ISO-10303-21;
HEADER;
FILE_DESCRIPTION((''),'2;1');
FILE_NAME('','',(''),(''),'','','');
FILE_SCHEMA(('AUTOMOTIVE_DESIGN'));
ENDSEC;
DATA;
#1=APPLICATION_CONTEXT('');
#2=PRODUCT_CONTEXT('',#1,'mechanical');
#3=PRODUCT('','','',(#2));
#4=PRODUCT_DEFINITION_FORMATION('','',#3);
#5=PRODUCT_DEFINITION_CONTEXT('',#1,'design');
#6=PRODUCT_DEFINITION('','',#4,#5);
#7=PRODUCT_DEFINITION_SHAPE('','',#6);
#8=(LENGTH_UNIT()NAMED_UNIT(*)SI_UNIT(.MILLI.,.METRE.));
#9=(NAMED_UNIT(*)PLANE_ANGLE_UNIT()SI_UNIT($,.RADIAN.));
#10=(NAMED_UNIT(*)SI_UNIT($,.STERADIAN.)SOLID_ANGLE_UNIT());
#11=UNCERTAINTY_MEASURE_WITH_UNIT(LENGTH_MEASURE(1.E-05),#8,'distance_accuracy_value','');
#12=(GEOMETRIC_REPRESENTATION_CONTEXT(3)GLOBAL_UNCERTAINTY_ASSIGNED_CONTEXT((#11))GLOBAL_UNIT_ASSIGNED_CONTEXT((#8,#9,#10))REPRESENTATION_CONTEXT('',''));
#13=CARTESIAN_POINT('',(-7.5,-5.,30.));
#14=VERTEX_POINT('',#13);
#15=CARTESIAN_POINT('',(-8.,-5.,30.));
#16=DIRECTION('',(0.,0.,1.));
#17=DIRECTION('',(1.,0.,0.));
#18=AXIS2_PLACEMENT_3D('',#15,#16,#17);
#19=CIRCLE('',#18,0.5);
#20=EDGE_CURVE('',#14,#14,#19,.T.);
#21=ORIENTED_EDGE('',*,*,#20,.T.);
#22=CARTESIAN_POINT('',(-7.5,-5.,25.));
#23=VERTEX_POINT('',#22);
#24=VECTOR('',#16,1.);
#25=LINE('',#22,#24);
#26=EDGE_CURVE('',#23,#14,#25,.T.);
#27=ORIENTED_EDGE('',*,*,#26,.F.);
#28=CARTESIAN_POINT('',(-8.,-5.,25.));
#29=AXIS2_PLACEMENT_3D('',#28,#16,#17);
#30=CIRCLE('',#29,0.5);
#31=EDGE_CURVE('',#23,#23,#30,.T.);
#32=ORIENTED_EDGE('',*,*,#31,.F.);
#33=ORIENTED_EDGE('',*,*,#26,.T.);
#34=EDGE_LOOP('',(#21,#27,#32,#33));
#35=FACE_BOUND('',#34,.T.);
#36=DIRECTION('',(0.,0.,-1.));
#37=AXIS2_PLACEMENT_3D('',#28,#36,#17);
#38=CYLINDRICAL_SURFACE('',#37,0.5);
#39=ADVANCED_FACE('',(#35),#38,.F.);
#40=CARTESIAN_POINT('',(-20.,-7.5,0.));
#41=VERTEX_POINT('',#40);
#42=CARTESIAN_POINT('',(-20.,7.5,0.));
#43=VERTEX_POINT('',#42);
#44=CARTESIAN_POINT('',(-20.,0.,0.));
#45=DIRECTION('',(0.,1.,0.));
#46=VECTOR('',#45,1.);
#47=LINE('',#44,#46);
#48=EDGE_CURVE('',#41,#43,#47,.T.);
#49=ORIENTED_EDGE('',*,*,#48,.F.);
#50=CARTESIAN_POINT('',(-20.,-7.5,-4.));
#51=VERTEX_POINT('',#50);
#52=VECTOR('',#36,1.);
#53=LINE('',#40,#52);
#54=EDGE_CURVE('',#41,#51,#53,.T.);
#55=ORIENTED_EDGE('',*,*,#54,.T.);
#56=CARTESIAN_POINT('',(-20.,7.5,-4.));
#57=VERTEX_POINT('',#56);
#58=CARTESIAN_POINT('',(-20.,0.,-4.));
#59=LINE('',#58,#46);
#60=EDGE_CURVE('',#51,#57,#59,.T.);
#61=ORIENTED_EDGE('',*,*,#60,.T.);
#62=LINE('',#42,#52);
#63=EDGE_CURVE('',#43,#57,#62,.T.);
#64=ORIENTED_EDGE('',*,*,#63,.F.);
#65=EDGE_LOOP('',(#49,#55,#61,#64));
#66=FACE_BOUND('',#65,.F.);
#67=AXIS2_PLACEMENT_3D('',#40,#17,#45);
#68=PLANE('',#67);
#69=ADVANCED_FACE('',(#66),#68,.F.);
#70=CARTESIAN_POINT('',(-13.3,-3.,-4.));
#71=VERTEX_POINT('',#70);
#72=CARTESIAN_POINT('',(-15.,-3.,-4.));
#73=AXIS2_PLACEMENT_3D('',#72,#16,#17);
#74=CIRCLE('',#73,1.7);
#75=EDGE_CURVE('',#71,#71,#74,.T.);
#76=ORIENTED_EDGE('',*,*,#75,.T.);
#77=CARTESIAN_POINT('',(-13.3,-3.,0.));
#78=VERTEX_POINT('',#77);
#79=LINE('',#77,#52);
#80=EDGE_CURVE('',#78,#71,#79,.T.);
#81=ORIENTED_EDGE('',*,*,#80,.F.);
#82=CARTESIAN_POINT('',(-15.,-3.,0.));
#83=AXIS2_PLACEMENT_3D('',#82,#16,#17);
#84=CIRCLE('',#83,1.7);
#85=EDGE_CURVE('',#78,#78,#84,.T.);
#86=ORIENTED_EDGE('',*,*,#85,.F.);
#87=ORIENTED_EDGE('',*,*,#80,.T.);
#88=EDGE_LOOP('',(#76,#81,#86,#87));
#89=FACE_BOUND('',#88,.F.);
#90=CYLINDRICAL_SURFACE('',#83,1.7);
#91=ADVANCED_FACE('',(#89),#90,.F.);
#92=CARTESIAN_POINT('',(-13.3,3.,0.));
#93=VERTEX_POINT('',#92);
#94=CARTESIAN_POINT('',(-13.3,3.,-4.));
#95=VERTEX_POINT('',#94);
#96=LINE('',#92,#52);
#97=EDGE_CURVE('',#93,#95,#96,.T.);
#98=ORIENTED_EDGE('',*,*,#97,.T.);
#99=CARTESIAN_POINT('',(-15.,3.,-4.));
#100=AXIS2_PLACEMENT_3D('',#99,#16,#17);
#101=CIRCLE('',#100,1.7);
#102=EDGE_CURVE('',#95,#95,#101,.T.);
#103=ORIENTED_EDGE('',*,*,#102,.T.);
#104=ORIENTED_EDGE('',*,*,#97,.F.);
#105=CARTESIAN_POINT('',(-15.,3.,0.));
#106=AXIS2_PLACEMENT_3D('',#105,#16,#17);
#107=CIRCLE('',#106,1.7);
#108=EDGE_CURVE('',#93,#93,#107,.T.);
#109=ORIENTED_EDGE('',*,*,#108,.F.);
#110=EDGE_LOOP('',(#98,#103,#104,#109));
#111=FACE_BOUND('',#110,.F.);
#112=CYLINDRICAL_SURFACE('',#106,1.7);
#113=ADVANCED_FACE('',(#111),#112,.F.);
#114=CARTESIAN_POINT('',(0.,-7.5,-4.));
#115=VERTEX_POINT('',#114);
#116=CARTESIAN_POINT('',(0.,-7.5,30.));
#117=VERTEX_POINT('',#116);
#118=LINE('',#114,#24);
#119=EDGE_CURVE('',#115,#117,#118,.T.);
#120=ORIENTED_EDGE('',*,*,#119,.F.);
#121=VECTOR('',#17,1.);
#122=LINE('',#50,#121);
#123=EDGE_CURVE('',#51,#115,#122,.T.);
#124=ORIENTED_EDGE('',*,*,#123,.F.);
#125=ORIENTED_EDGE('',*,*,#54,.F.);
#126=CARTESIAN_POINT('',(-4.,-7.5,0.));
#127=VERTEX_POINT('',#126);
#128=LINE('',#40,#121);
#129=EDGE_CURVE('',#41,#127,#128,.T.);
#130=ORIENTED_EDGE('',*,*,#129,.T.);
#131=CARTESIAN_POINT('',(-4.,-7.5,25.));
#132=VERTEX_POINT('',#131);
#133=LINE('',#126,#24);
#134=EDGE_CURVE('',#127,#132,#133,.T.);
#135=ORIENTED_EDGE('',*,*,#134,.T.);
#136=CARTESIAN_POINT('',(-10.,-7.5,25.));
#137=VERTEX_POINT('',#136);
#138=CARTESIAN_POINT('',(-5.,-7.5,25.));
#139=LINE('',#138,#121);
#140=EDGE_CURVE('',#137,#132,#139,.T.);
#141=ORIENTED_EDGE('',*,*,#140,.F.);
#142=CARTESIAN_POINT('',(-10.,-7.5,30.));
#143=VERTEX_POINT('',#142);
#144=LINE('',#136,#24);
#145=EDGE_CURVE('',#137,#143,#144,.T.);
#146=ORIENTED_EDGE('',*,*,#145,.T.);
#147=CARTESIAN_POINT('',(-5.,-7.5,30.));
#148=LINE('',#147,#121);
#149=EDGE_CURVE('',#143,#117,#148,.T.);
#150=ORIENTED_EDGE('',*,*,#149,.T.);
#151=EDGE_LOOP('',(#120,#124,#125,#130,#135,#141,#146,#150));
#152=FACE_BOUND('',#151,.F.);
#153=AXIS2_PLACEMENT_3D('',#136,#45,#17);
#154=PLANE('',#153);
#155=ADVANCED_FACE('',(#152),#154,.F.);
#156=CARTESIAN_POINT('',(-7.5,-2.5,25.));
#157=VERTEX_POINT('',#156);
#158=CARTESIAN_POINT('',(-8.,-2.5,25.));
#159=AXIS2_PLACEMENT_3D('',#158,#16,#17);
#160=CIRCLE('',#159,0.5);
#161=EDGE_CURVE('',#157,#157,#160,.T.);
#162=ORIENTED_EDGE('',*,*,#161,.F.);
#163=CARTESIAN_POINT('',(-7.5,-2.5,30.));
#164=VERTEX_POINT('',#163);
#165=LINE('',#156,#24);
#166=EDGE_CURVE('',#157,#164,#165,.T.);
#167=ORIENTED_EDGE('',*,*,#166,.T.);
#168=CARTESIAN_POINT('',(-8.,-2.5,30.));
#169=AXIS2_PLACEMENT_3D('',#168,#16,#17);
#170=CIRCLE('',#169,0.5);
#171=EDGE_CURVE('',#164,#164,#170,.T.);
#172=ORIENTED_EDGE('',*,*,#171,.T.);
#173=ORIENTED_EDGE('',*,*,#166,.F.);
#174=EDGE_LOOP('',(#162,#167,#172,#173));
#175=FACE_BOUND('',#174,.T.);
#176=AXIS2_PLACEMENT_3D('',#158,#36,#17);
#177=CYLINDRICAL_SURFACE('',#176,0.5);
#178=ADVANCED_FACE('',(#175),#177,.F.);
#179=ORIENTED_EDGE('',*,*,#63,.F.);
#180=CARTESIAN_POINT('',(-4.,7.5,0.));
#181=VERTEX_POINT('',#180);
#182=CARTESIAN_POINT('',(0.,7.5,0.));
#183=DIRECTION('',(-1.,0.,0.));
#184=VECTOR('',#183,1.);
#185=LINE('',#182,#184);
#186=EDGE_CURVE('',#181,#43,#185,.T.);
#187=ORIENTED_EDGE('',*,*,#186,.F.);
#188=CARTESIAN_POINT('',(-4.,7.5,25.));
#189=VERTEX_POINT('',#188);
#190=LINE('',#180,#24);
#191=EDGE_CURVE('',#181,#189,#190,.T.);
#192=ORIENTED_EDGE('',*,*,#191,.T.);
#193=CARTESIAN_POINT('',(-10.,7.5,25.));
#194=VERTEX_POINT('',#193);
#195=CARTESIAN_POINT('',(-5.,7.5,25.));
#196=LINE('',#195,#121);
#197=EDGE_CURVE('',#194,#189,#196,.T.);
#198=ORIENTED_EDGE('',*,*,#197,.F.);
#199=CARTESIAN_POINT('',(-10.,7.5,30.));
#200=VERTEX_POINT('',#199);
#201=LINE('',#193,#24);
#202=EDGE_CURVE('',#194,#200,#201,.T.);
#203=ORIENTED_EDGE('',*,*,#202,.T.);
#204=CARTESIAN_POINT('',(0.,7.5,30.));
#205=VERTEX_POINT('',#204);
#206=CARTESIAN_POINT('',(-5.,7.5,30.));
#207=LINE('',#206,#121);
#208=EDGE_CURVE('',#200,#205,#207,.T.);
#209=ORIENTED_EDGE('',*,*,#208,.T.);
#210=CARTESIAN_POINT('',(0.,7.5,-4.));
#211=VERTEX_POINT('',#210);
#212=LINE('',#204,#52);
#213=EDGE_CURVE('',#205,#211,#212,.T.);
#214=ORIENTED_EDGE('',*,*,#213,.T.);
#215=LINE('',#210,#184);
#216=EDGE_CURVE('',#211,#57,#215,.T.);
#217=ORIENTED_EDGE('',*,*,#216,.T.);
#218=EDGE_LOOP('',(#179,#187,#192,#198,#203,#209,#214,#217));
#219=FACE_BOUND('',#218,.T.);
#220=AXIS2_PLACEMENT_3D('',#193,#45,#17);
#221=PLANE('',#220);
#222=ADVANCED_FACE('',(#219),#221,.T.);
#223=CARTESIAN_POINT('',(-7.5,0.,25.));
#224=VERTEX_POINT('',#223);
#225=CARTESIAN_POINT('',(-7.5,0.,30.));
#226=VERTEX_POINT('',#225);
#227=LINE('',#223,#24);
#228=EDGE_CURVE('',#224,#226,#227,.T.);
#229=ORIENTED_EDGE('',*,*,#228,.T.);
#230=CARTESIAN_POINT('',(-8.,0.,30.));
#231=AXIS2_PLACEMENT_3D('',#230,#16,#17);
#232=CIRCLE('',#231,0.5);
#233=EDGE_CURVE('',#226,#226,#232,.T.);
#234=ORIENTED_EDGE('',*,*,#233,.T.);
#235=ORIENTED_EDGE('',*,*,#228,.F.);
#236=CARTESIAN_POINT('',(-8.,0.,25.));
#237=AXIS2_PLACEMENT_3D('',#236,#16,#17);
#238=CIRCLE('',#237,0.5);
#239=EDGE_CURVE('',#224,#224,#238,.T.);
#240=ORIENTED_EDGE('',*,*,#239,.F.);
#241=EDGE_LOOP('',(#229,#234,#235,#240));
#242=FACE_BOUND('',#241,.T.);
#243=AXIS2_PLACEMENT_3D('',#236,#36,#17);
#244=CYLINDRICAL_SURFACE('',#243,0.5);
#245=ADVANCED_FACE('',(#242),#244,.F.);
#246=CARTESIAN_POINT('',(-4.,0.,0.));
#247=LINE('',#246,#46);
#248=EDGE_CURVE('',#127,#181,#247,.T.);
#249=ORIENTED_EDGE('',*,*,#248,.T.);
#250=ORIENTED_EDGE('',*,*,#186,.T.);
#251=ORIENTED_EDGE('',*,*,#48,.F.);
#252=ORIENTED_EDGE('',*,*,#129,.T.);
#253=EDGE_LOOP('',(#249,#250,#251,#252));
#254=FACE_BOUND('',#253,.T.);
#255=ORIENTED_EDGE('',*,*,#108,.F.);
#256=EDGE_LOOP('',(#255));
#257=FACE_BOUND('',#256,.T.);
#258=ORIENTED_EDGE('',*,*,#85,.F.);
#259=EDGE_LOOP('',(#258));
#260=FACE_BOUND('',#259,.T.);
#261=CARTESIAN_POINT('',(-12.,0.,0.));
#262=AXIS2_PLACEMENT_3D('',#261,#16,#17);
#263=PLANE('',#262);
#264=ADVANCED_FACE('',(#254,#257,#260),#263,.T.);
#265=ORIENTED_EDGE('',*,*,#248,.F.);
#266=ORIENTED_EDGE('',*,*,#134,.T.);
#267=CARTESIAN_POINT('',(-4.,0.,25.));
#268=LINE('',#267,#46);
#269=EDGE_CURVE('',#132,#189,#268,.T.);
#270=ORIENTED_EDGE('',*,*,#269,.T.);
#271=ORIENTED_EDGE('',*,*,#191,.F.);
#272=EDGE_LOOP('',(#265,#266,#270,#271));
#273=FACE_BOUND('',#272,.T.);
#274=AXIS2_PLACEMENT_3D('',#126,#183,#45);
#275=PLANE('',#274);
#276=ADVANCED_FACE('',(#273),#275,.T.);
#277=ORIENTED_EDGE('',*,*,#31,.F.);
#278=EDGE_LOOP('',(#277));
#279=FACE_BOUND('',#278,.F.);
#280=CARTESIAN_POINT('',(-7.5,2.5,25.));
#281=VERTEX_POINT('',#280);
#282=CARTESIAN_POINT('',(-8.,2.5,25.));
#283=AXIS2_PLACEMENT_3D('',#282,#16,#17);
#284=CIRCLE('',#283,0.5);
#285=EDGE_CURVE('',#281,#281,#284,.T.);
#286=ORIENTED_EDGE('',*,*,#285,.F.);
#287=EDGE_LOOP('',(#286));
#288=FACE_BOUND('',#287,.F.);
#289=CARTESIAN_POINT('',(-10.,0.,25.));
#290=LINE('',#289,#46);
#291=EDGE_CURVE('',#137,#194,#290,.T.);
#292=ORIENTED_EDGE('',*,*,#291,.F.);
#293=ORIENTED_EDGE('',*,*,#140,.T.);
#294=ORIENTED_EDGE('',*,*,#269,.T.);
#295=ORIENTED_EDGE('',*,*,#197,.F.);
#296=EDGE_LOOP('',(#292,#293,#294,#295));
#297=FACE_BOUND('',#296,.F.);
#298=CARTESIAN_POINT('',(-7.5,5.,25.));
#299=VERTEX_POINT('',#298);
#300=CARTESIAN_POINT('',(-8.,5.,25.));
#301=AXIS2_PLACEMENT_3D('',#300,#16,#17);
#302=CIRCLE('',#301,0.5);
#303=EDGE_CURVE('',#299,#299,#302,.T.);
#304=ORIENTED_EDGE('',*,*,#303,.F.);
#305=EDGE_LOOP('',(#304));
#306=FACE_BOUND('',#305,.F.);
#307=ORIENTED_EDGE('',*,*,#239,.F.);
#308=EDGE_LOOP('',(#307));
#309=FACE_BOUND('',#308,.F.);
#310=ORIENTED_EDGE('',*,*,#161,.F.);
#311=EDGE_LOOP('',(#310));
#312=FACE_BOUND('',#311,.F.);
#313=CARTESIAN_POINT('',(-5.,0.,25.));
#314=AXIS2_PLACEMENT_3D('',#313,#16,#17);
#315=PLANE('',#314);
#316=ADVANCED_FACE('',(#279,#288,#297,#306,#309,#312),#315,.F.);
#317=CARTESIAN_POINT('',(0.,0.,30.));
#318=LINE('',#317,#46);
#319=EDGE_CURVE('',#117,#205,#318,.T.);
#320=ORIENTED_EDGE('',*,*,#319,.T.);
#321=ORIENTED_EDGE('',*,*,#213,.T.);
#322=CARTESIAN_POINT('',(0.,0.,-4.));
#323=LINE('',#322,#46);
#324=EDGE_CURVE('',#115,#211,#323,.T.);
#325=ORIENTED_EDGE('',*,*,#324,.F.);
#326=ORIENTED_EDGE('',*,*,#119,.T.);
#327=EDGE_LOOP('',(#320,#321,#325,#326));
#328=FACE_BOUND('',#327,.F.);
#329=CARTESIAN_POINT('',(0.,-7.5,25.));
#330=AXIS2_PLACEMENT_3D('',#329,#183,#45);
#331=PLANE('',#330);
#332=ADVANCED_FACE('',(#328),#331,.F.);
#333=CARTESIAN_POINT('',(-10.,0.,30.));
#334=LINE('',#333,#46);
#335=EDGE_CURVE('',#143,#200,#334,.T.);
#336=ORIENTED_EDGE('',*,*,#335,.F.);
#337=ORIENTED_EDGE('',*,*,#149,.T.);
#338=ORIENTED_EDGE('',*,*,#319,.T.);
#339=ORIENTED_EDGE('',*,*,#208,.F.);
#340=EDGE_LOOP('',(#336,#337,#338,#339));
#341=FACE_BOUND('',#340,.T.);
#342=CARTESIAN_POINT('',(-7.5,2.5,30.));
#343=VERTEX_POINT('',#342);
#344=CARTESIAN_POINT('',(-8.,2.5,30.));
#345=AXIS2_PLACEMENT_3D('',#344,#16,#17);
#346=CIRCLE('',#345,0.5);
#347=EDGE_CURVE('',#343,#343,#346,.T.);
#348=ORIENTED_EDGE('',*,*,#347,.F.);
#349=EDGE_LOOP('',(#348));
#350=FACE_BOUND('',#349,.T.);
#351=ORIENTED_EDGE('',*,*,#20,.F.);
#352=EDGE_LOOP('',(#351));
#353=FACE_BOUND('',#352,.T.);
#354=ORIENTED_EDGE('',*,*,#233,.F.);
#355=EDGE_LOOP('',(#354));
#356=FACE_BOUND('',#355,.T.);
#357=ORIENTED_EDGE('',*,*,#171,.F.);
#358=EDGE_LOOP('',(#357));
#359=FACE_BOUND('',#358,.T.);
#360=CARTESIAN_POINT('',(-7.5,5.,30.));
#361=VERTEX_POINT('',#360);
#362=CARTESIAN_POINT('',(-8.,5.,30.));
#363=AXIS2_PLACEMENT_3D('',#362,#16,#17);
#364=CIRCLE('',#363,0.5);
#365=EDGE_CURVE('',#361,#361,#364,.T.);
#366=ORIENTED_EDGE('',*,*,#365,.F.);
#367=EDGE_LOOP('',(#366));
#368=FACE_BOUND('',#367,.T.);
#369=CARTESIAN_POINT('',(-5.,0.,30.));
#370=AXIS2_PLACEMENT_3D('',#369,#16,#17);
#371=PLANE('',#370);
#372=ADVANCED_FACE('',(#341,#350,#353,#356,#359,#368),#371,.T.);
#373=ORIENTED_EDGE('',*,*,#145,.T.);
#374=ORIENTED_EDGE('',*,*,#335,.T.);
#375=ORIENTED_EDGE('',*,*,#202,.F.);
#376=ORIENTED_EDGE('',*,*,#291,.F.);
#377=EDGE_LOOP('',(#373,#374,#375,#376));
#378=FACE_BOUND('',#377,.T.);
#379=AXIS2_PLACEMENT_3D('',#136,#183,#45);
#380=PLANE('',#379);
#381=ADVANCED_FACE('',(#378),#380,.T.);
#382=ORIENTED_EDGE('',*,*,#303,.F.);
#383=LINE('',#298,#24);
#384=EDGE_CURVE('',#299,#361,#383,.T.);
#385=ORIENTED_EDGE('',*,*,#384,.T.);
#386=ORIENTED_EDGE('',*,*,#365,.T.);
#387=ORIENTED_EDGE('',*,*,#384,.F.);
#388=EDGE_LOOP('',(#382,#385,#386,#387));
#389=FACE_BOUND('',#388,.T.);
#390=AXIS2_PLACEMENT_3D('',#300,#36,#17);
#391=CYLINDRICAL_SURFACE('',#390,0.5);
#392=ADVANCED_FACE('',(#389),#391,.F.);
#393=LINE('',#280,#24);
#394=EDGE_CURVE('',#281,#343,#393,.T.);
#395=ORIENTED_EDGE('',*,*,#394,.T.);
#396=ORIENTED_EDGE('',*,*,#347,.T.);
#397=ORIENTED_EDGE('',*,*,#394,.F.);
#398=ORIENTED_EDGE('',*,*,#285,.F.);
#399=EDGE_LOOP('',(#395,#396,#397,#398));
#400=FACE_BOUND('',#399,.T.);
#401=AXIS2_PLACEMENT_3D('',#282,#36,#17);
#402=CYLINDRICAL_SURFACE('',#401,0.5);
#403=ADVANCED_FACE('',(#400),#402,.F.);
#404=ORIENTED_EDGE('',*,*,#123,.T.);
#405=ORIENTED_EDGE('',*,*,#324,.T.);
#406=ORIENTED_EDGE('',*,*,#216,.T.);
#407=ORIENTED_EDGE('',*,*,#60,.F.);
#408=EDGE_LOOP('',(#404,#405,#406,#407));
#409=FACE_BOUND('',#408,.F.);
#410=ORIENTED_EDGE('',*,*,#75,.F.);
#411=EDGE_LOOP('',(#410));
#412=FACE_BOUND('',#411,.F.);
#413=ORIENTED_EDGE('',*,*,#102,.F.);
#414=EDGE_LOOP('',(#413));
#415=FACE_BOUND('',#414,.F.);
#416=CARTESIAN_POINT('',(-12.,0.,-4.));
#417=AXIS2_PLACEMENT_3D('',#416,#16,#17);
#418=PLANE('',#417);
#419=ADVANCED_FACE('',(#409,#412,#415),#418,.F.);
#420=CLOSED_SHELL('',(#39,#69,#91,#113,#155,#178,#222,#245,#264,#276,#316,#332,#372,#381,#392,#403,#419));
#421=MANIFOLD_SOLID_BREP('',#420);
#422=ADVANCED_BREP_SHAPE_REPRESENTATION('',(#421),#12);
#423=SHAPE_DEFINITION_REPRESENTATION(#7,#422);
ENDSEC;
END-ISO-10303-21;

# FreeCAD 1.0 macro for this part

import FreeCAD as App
import Part
import Sketcher


def add_polygon(sketch, points):
    """Adds a closed chain of lines whose ends are joined by coincident constraints."""
    first, n = sketch.GeometryCount, len(points)
    for a, b in zip(points, points[1:] + points[:1]):
        sketch.addGeometry(Part.LineSegment(App.Vector(*a, 0), App.Vector(*b, 0)), False)
    for i in range(n):
        sketch.addConstraint(Sketcher.Constraint("Coincident", first + i, 2, first + (i + 1) % n, 1))

doc = App.newDocument("Part")
body = doc.addObject("PartDesign::Body", "Body")

sketch1 = body.newObject("Sketcher::SketchObject", "Sketch")
sketch1.AttachmentSupport = (doc.getObject("XY_Plane"), [""])
sketch1.MapMode = "FlatFace"
add_polygon(sketch1, [(-20, 7.5), (-20, -7.5), (0, -7.5), (0, 7.5)])
sketch1.addGeometry(Part.Circle(App.Vector(-15, -3, 0), App.Vector(0, 0, 1), 1.7), False)
sketch1.addGeometry(Part.Circle(App.Vector(-15, 3, 0), App.Vector(0, 0, 1), 1.7), False)
sketch1.addConstraint(Sketcher.Constraint("Vertical", 0))
sketch1.addConstraint(Sketcher.Constraint("Horizontal", 1))
sketch1.addConstraint(Sketcher.Constraint("Vertical", 2))
sketch1.addConstraint(Sketcher.Constraint("Horizontal", 3))
sketch1.addConstraint(Sketcher.Constraint("Equal", 4, 5))
sketch1.addConstraint(Sketcher.Constraint("Symmetric", 1, 2, 2, 2, -1, 1))
sketch1.addConstraint(Sketcher.Constraint("Symmetric", 4, 3, 5, 3, -1))
sketch1.addConstraint(Sketcher.Constraint("Diameter", 4, 3.4))
sketch1.addConstraint(Sketcher.Constraint("DistanceX", 1, 1, 1, 2, 20.0))
sketch1.addConstraint(Sketcher.Constraint("DistanceY", 0, 2, 0, 1, 15.0))
sketch1.addConstraint(Sketcher.Constraint("DistanceX", 4, 3, -1, 1, 15.0))
sketch1.addConstraint(Sketcher.Constraint("DistanceY", 4, 3, -1, 1, 3.0))
pad1 = body.newObject("PartDesign::Pad", "Pad")
pad1.Profile = sketch1
pad1.Length = 4
pad1.Reversed = True

sketch2 = body.newObject("Sketcher::SketchObject", "Sketch001")
sketch2.AttachmentSupport = (doc.getObject("XY_Plane"), [""])
sketch2.MapMode = "FlatFace"
add_polygon(sketch2, [(-4, 7.5), (-4, -7.5), (0, -7.5), (0, 7.5)])
sketch2.addConstraint(Sketcher.Constraint("Vertical", 0))
sketch2.addConstraint(Sketcher.Constraint("Horizontal", 1))
sketch2.addConstraint(Sketcher.Constraint("Vertical", 2))
sketch2.addConstraint(Sketcher.Constraint("Horizontal", 3))
sketch2.addConstraint(Sketcher.Constraint("Symmetric", 1, 2, 2, 2, -1, 1))
sketch2.addConstraint(Sketcher.Constraint("DistanceX", 1, 1, 1, 2, 4.0))
sketch2.addConstraint(Sketcher.Constraint("DistanceY", 0, 2, 0, 1, 15.0))
pad2 = body.newObject("PartDesign::Pad", "Pad001")
pad2.Profile = sketch2
pad2.Length = 25

sketch3 = body.newObject("Sketcher::SketchObject", "Sketch002")
sketch3.AttachmentSupport = (doc.getObject("XY_Plane"), [""])
sketch3.MapMode = "FlatFace"
sketch3.AttachmentOffset = App.Placement(App.Vector(0, 0, 25), App.Rotation())
add_polygon(sketch3, [(-10, 7.5), (-10, -7.5), (0, -7.5), (0, 7.5)])
sketch3.addGeometry(Part.Circle(App.Vector(-8, -5, 0), App.Vector(0, 0, 1), 0.5), False)
sketch3.addGeometry(Part.Circle(App.Vector(-8, -2.5, 0), App.Vector(0, 0, 1), 0.5), False)
sketch3.addGeometry(Part.Circle(App.Vector(-8, 0, 0), App.Vector(0, 0, 1), 0.5), False)
sketch3.addGeometry(Part.Circle(App.Vector(-8, 2.5, 0), App.Vector(0, 0, 1), 0.5), False)
sketch3.addGeometry(Part.Circle(App.Vector(-8, 5, 0), App.Vector(0, 0, 1), 0.5), False)
sketch3.addConstraint(Sketcher.Constraint("Vertical", 0))
sketch3.addConstraint(Sketcher.Constraint("Horizontal", 1))
sketch3.addConstraint(Sketcher.Constraint("Vertical", 2))
sketch3.addConstraint(Sketcher.Constraint("Horizontal", 3))
sketch3.addConstraint(Sketcher.Constraint("Equal", 4, 5))
sketch3.addConstraint(Sketcher.Constraint("Equal", 5, 6))
sketch3.addConstraint(Sketcher.Constraint("Equal", 6, 7))
sketch3.addConstraint(Sketcher.Constraint("Equal", 7, 8))
sketch3.addConstraint(Sketcher.Constraint("Symmetric", 1, 2, 2, 2, -1, 1))
sketch3.addConstraint(Sketcher.Constraint("Symmetric", 5, 3, 7, 3, -1))
sketch3.addConstraint(Sketcher.Constraint("Symmetric", 4, 3, 8, 3, -1))
sketch3.addConstraint(Sketcher.Constraint("PointOnObject", 6, 3, -1))
sketch3.addConstraint(Sketcher.Constraint("Vertical", 4, 3, 5, 3))
sketch3.addConstraint(Sketcher.Constraint("Vertical", 5, 3, 6, 3))
sketch3.addConstraint(Sketcher.Constraint("Diameter", 4, 1.0))
sketch3.addConstraint(Sketcher.Constraint("DistanceX", 1, 1, 1, 2, 10.0))
sketch3.addConstraint(Sketcher.Constraint("DistanceY", 0, 2, 0, 1, 15.0))
sketch3.addConstraint(Sketcher.Constraint("DistanceX", 4, 3, -1, 1, 8.0))
sketch3.addConstraint(Sketcher.Constraint("DistanceY", 4, 3, -1, 1, 5.0))
sketch3.addConstraint(Sketcher.Constraint("DistanceY", 5, 3, 7, 3, 5.0))
pad3 = body.newObject("PartDesign::Pad", "Pad002")
pad3.Profile = sketch3
pad3.Length = 5

doc.recompute()
